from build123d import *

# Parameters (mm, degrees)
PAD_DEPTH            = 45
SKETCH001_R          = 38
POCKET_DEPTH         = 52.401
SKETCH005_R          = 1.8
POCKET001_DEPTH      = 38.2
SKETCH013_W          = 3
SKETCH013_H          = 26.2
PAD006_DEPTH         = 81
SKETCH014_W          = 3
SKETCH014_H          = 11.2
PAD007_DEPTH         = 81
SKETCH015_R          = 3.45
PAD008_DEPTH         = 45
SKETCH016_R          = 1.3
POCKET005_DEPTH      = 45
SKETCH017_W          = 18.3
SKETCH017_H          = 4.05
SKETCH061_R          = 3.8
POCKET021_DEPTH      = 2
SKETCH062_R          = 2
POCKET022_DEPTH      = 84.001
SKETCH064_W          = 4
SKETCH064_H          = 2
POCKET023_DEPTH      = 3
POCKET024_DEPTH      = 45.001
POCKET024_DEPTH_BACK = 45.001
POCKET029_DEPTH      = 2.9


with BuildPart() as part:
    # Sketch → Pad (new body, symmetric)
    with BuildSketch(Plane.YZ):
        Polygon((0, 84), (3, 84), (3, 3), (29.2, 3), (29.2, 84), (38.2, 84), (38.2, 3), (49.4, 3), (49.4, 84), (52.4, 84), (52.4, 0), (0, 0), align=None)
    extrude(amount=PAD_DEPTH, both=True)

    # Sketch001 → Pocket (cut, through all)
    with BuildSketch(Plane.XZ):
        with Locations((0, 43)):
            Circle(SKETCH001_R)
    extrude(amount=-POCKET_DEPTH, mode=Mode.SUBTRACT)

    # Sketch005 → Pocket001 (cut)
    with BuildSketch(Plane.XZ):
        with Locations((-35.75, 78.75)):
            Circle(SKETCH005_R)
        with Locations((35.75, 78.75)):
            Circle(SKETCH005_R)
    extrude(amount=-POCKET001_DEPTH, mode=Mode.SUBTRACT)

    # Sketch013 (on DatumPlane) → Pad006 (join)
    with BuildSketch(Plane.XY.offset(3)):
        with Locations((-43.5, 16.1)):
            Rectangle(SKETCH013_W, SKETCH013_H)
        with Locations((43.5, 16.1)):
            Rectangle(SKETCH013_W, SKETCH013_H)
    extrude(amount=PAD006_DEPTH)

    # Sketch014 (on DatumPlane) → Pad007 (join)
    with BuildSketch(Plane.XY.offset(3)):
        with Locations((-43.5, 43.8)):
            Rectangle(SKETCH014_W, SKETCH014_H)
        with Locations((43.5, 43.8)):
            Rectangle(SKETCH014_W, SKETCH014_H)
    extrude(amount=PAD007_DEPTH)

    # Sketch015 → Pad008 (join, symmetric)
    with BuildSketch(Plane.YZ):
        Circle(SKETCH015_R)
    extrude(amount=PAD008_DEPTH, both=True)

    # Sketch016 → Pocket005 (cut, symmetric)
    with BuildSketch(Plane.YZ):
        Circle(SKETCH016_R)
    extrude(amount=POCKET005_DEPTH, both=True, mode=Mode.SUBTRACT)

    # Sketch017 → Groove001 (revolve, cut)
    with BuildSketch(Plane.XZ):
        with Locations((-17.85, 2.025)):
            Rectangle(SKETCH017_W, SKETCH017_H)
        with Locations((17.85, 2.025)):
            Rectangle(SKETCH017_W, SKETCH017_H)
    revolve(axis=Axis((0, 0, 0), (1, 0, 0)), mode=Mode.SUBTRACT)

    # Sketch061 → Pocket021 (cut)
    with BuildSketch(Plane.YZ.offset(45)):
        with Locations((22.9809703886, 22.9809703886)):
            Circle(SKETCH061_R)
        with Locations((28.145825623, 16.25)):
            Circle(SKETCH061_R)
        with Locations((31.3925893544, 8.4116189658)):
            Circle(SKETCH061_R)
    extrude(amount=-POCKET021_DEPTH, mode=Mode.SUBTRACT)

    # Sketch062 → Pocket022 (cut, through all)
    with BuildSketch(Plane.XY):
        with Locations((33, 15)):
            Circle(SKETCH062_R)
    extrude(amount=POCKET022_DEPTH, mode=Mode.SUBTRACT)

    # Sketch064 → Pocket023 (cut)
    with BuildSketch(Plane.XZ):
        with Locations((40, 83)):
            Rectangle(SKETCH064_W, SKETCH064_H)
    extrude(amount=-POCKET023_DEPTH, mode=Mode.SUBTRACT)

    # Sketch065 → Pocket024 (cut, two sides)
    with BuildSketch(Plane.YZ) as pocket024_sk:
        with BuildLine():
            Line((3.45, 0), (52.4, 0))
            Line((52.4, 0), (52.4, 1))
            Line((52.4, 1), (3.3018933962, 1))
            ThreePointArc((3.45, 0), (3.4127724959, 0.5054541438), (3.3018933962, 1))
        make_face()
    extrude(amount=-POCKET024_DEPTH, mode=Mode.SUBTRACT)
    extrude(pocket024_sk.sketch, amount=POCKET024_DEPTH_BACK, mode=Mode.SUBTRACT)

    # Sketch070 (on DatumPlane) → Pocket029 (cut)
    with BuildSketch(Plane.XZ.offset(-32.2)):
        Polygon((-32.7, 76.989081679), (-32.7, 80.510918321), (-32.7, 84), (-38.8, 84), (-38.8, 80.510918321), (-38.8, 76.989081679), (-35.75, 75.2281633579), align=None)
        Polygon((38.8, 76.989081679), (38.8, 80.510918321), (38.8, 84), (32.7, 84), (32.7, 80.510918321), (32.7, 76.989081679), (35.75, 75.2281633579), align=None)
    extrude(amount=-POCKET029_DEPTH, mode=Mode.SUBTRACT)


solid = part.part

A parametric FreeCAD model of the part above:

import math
import FreeCAD as App
import Part
import Sketcher
Q = App.Units.Quantity


def add_polygon(sketch, points):
    """Adds a closed chain of lines whose ends are joined by coincident constraints."""
    first, n = sketch.GeometryCount, len(points)
    for a, b in zip(points, points[1:] + points[:1]):
        sketch.addGeometry(Part.LineSegment(App.Vector(*a, 0), App.Vector(*b, 0)), False)
    for i in range(n):
        sketch.addConstraint(Sketcher.Constraint("Coincident", first + i, 2, first + (i + 1) % n, 1))

doc = App.newDocument("Part")
params = doc.addObject("Spreadsheet::Sheet", "Params")
for row, (alias, value) in enumerate([
    ("sketch1_width", "3 mm"),
    ("sketch1_width2", "9 mm"),
    ("sketch1_height", "84 mm"),
    ("sketch1_height2", "81 mm"),
    ("sketch1_width3", "52.4 mm"),
    ("pad1_length", "90 mm"),
    ("sketch2_diameter", "76 mm"),
    ("sketch3_diameter", "3.6 mm"),
    ("pocket2_length", "38.2 mm"),
    ("sketch4_width", "3 mm"),
    ("sketch4_height", "26.2 mm"),
    ("pad2_length", "81 mm"),
    ("sketch5_width", "3 mm"),
    ("sketch5_height", "11.2 mm"),
    ("pad3_length", "81 mm"),
    ("sketch6_diameter", "6.9 mm"),
    ("pad4_length", "90 mm"),
    ("sketch7_diameter", "2.6 mm"),
    ("pocket3_length", "90 mm"),
    ("sketch8_width", "18.3 mm"),
    ("sketch8_height", "4.05 mm"),
    ("groove_angle", "360 deg"),
    ("sketch9_diameter", "7.6 mm"),
    ("pocket4_length", "2 mm"),
    ("sketch10_diameter", "4 mm"),
    ("sketch11_width", "4 mm"),
    ("sketch11_height", "2 mm"),
    ("pocket6_length", "3 mm"),
    ("sketch12_height", "1 mm"),
    ("sketch12_radius", "3.45 mm"),
    ("sketch12_width", "48.95 mm"),
    ("sketch13_width", "6.1 mm"),
    ("pocket8_length", "2.9 mm"),
], start=1):
    params.set(f"A{row}", alias)
    params.set(f"B{row}", "=" + value)
    params.setAlias(f"B{row}", alias)

body = doc.addObject("PartDesign::Body", "Body")

sketch1 = body.newObject("Sketcher::SketchObject", "Sketch")
sketch1.AttachmentSupport = (doc.getObject("YZ_Plane"), [""])
sketch1.MapMode = "FlatFace"
add_polygon(sketch1, [(3, 84), (0, 84), (0, 0), (52.4, 0), (52.4, 84), (49.4, 84), (49.4, 3), (38.2, 3), (38.2, 84), (29.2, 84), (29.2, 3), (3, 3)])
sketch1.addConstraint(Sketcher.Constraint("Horizontal", 0))
sketch1.addConstraint(Sketcher.Constraint("Vertical", 1))
sketch1.addConstraint(Sketcher.Constraint("Horizontal", 2))
sketch1.addConstraint(Sketcher.Constraint("Vertical", 3))
sketch1.addConstraint(Sketcher.Constraint("Horizontal", 4))
sketch1.addConstraint(Sketcher.Constraint("Vertical", 5))
sketch1.addConstraint(Sketcher.Constraint("Horizontal", 6))
sketch1.addConstraint(Sketcher.Constraint("Vertical", 7))
sketch1.addConstraint(Sketcher.Constraint("Horizontal", 8))
sketch1.addConstraint(Sketcher.Constraint("Vertical", 9))
sketch1.addConstraint(Sketcher.Constraint("Horizontal", 10))
sketch1.addConstraint(Sketcher.Constraint("Vertical", 11))
sketch1.addConstraint(Sketcher.Constraint("Coincident", 1, 2, -1, 1))
sketch1.addConstraint(Sketcher.Constraint("Horizontal", 0, 2, 3, 2))
sketch1.addConstraint(Sketcher.Constraint("Horizontal", 4, 2, 7, 2))
sketch1.addConstraint(Sketcher.Constraint("Horizontal", 6, 2, 9, 2))
sketch1.addConstraint(Sketcher.Constraint("Equal", 0, 4))
sketch1.addConstraint(Sketcher.Constraint("DistanceX", 0, 2, 0, 1, 3.0))
sketch1.addConstraint(Sketcher.Constraint("DistanceX", 8, 2, 8, 1, 9.0))
sketch1.addConstraint(Sketcher.Constraint("DistanceY", 1, 2, 1, 1, 84.0))
sketch1.addConstraint(Sketcher.Constraint("DistanceY", 5, 2, 5, 1, 81.0))
sketch1.addConstraint(Sketcher.Constraint("DistanceX", 2, 1, 2, 2, 52.4))
sketch1.addConstraint(Sketcher.Constraint("DistanceX", 6, 2, 6, 1, 11.2))
sketch1.setExpression("Constraints[29]", "Params.sketch1_width")
sketch1.setExpression("Constraints[30]", "Params.sketch1_width2")
sketch1.setExpression("Constraints[31]", "Params.sketch1_height")
sketch1.setExpression("Constraints[32]", "Params.sketch1_height2")
sketch1.setExpression("Constraints[33]", "Params.sketch1_width3")
pad1 = body.newObject("PartDesign::Pad", "Pad")
pad1.Profile = sketch1
pad1.setExpression("Length", "Params.pad1_length")
pad1.Midplane = True

sketch2 = body.newObject("Sketcher::SketchObject", "Sketch001")
sketch2.AttachmentSupport = (doc.getObject("XZ_Plane"), [""])
sketch2.MapMode = "FlatFace"
sketch2.addGeometry(Part.Circle(App.Vector(0, 43, 0), App.Vector(0, 0, 1), 38), False)
sketch2.addConstraint(Sketcher.Constraint("PointOnObject", 0, 3, -2))
sketch2.addConstraint(Sketcher.Constraint("Diameter", 0, 76.0))
sketch2.addConstraint(Sketcher.Constraint("DistanceY", -1, 1, 0, 3, 43.0))
sketch2.setExpression("Constraints[1]", "Params.sketch2_diameter")
pocket1 = body.newObject("PartDesign::Pocket", "Pocket")
pocket1.Profile = sketch2
pocket1.Type = "ThroughAll"

sketch3 = body.newObject("Sketcher::SketchObject", "Sketch002")
sketch3.AttachmentSupport = (doc.getObject("XZ_Plane"), [""])
sketch3.MapMode = "FlatFace"
sketch3.addGeometry(Part.Circle(App.Vector(-35.8, 78.8, 0), App.Vector(0, 0, 1), 1.8), False)
sketch3.addGeometry(Part.Circle(App.Vector(35.8, 78.8, 0), App.Vector(0, 0, 1), 1.8), False)
sketch3.addConstraint(Sketcher.Constraint("Equal", 0, 1))
sketch3.addConstraint(Sketcher.Constraint("Symmetric", 0, 3, 1, 3, -2))
sketch3.addConstraint(Sketcher.Constraint("Diameter", 0, 3.6))
sketch3.addConstraint(Sketcher.Constraint("DistanceX", 0, 3, 1, 3, 71.5))
sketch3.addConstraint(Sketcher.Constraint("DistanceY", -1, 1, 0, 3, 78.75))
sketch3.setExpression("Constraints[2]", "Params.sketch3_diameter")
pocket2 = body.newObject("PartDesign::Pocket", "Pocket001")
pocket2.Profile = sketch3
pocket2.setExpression("Length", "Params.pocket2_length")

sketch4 = body.newObject("Sketcher::SketchObject", "Sketch003")
sketch4.AttachmentSupport = (doc.getObject("XY_Plane"), [""])
sketch4.MapMode = "FlatFace"
sketch4.AttachmentOffset = App.Placement(App.Vector(0, 0, 3), App.Rotation())
add_polygon(sketch4, [(-45, 29.2), (-45, 3), (-42, 3), (-42, 29.2)])
add_polygon(sketch4, [(42, 29.2), (42, 3), (45, 3), (45, 29.2)])
sketch4.addConstraint(Sketcher.Constraint("Vertical", 0))
sketch4.addConstraint(Sketcher.Constraint("Horizontal", 1))
sketch4.addConstraint(Sketcher.Constraint("Vertical", 2))
sketch4.addConstraint(Sketcher.Constraint("Horizontal", 3))
sketch4.addConstraint(Sketcher.Constraint("Vertical", 4))
sketch4.addConstraint(Sketcher.Constraint("Horizontal", 5))
sketch4.addConstraint(Sketcher.Constraint("Vertical", 6))
sketch4.addConstraint(Sketcher.Constraint("Horizontal", 7))
sketch4.addConstraint(Sketcher.Constraint("Symmetric", 1, 2, 4, 2, -2))
sketch4.addConstraint(Sketcher.Constraint("Symmetric", 3, 2, 6, 2, -2))
sketch4.addConstraint(Sketcher.Constraint("DistanceX", 1, 1, 1, 2, 3.0))
sketch4.addConstraint(Sketcher.Constraint("DistanceY", 0, 2, 0, 1, 26.2))
sketch4.addConstraint(Sketcher.Constraint("DistanceX", 0, 2, -1, 1, 45.0))
sketch4.addConstraint(Sketcher.Constraint("DistanceY", -1, 1, 0, 2, 3.0))
sketch4.setExpression("Constraints[18]", "Params.sketch4_width")
sketch4.setExpression("Constraints[19]", "Params.sketch4_height")
pad2 = body.newObject("PartDesign::Pad", "Pad001")
pad2.Profile = sketch4
pad2.setExpression("Length", "Params.pad2_length")

sketch5 = body.newObject("Sketcher::SketchObject", "Sketch004")
sketch5.AttachmentSupport = (doc.getObject("XY_Plane"), [""])
sketch5.MapMode = "FlatFace"
sketch5.AttachmentOffset = App.Placement(App.Vector(0, 0, 3), App.Rotation())
add_polygon(sketch5, [(-45, 49.4), (-45, 38.2), (-42, 38.2), (-42, 49.4)])
add_polygon(sketch5, [(42, 49.4), (42, 38.2), (45, 38.2), (45, 49.4)])
sketch5.addConstraint(Sketcher.Constraint("Vertical", 0))
sketch5.addConstraint(Sketcher.Constraint("Horizontal", 1))
sketch5.addConstraint(Sketcher.Constraint("Vertical", 2))
sketch5.addConstraint(Sketcher.Constraint("Horizontal", 3))
sketch5.addConstraint(Sketcher.Constraint("Vertical", 4))
sketch5.addConstraint(Sketcher.Constraint("Horizontal", 5))
sketch5.addConstraint(Sketcher.Constraint("Vertical", 6))
sketch5.addConstraint(Sketcher.Constraint("Horizontal", 7))
sketch5.addConstraint(Sketcher.Constraint("Symmetric", 1, 2, 4, 2, -2))
sketch5.addConstraint(Sketcher.Constraint("Symmetric", 3, 2, 6, 2, -2))
sketch5.addConstraint(Sketcher.Constraint("DistanceX", 1, 1, 1, 2, 3.0))
sketch5.addConstraint(Sketcher.Constraint("DistanceY", 0, 2, 0, 1, 11.2))
sketch5.addConstraint(Sketcher.Constraint("DistanceX", 0, 2, -1, 1, 45.0))
sketch5.addConstraint(Sketcher.Constraint("DistanceY", -1, 1, 0, 2, 38.2))
sketch5.setExpression("Constraints[18]", "Params.sketch5_width")
sketch5.setExpression("Constraints[19]", "Params.sketch5_height")
pad3 = body.newObject("PartDesign::Pad", "Pad002")
pad3.Profile = sketch5
pad3.setExpression("Length", "Params.pad3_length")

sketch6 = body.newObject("Sketcher::SketchObject", "Sketch005")
sketch6.AttachmentSupport = (doc.getObject("YZ_Plane"), [""])
sketch6.MapMode = "FlatFace"
sketch6.addGeometry(Part.Circle(App.Vector(0, 0, 0), App.Vector(0, 0, 1), 3.5), False)
sketch6.addConstraint(Sketcher.Constraint("Coincident", 0, 3, -1, 1))
sketch6.addConstraint(Sketcher.Constraint("Diameter", 0, 6.9))
sketch6.setExpression("Constraints[1]", "Params.sketch6_diameter")
pad4 = body.newObject("PartDesign::Pad", "Pad003")
pad4.Profile = sketch6
pad4.setExpression("Length", "Params.pad4_length")
pad4.Midplane = True

sketch7 = body.newObject("Sketcher::SketchObject", "Sketch006")
sketch7.AttachmentSupport = (doc.getObject("YZ_Plane"), [""])
sketch7.MapMode = "FlatFace"
sketch7.addGeometry(Part.Circle(App.Vector(0, 0, 0), App.Vector(0, 0, 1), 1.3), False)
sketch7.addConstraint(Sketcher.Constraint("Coincident", 0, 3, -1, 1))
sketch7.addConstraint(Sketcher.Constraint("Diameter", 0, 2.6))
sketch7.setExpression("Constraints[1]", "Params.sketch7_diameter")
pocket3 = body.newObject("PartDesign::Pocket", "Pocket002")
pocket3.Profile = sketch7
pocket3.setExpression("Length", "Params.pocket3_length")
pocket3.Midplane = True

sketch8 = body.newObject("Sketcher::SketchObject", "Sketch007")
sketch8.AttachmentSupport = (doc.getObject("XZ_Plane"), [""])
sketch8.MapMode = "FlatFace"
add_polygon(sketch8, [(-27, 4), (-27, 0), (-8.7, 0), (-8.7, 4)])
add_polygon(sketch8, [(8.7, 4), (8.7, 0), (27, 0), (27, 4)])
sketch8.addConstraint(Sketcher.Constraint("Vertical", 0))
sketch8.addConstraint(Sketcher.Constraint("Horizontal", 1))
sketch8.addConstraint(Sketcher.Constraint("Vertical", 2))
sketch8.addConstraint(Sketcher.Constraint("Horizontal", 3))
sketch8.addConstraint(Sketcher.Constraint("Vertical", 4))
sketch8.addConstraint(Sketcher.Constraint("Horizontal", 5))
sketch8.addConstraint(Sketcher.Constraint("Vertical", 6))
sketch8.addConstraint(Sketcher.Constraint("Horizontal", 7))
sketch8.addConstraint(Sketcher.Constraint("Symmetric", 1, 2, 4, 2, -1, 1))
sketch8.addConstraint(Sketcher.Constraint("Symmetric", 0, 2, 5, 2, -2))
sketch8.addConstraint(Sketcher.Constraint("Horizontal", 3, 2, 6, 2))
sketch8.addConstraint(Sketcher.Constraint("DistanceX", 1, 1, 1, 2, 18.3))
sketch8.addConstraint(Sketcher.Constraint("DistanceX", 0, 2, -1, 1, 27.0))
sketch8.addConstraint(Sketcher.Constraint("DistanceY", 0, 2, 0, 1, 4.05))
sketch8.setExpression("Constraints[19]", "Params.sketch8_width")
sketch8.setExpression("Constraints[21]", "Params.sketch8_height")
groove = body.newObject("PartDesign::Groove", "Groove")
groove.Profile = sketch8
groove.ReferenceAxis = (sketch8, ["H_Axis"])
groove.setExpression("Angle", "Params.groove_angle")

sketch9 = body.newObject("Sketcher::SketchObject", "Sketch008")
sketch9.AttachmentSupport = (doc.getObject("YZ_Plane"), [""])
sketch9.MapMode = "FlatFace"
sketch9.AttachmentOffset = App.Placement(App.Vector(0, 0, 45), App.Rotation())
sketch9.addGeometry(Part.Circle(App.Vector(23, 23, 0), App.Vector(0, 0, 1), 3.8), False)
sketch9.addGeometry(Part.Circle(App.Vector(28.1, 16.2, 0), App.Vector(0, 0, 1), 3.8), False)
sketch9.addGeometry(Part.Circle(App.Vector(31.4, 8.4, 0), App.Vector(0, 0, 1), 3.8), False)
sketch9.addConstraint(Sketcher.Constraint("Equal", 0, 1))
sketch9.addConstraint(Sketcher.Constraint("Equal", 1, 2))
sketch9.addConstraint(Sketcher.Constraint("Diameter", 0, 7.6))
sketch9.addConstraint(Sketcher.Constraint("DistanceY", -1, 1, 1, 3, 16.25))
sketch9.addConstraint(Sketcher.Constraint("DistanceX", -1, 1, 0, 3, 22.98097))
sketch9.addConstraint(Sketcher.Constraint("DistanceY", -1, 1, 0, 3, 22.98097))
sketch9.addConstraint(Sketcher.Constraint("DistanceX", -1, 1, 2, 3, 31.392589))
sketch9.addConstraint(Sketcher.Constraint("DistanceY", -1, 1, 2, 3, 8.411619))
sketch9.addConstraint(Sketcher.Constraint("DistanceX", -1, 1, 1, 3, 28.145826))
sketch9.setExpression("Constraints[2]", "Params.sketch9_diameter")
pocket4 = body.newObject("PartDesign::Pocket", "Pocket003")
pocket4.Profile = sketch9
pocket4.setExpression("Length", "Params.pocket4_length")

sketch10 = body.newObject("Sketcher::SketchObject", "Sketch009")
sketch10.AttachmentSupport = (doc.getObject("XY_Plane"), [""])
sketch10.MapMode = "FlatFace"
sketch10.addGeometry(Part.Circle(App.Vector(33, 15, 0), App.Vector(0, 0, 1), 2), False)
sketch10.addConstraint(Sketcher.Constraint("Diameter", 0, 4.0))
sketch10.addConstraint(Sketcher.Constraint("DistanceX", -1, 1, 0, 3, 33.0))
sketch10.addConstraint(Sketcher.Constraint("DistanceY", -1, 1, 0, 3, 15.0))
sketch10.setExpression("Constraints[0]", "Params.sketch10_diameter")
pocket5 = body.newObject("PartDesign::Pocket", "Pocket004")
pocket5.Profile = sketch10
pocket5.Type = "ThroughAll"
pocket5.Reversed = True

sketch11 = body.newObject("Sketcher::SketchObject", "Sketch010")
sketch11.AttachmentSupport = (doc.getObject("XZ_Plane"), [""])
sketch11.MapMode = "FlatFace"
add_polygon(sketch11, [(38, 84), (38, 82), (42, 82), (42, 84)])
sketch11.addConstraint(Sketcher.Constraint("Vertical", 0))
sketch11.addConstraint(Sketcher.Constraint("Horizontal", 1))
sketch11.addConstraint(Sketcher.Constraint("Vertical", 2))
sketch11.addConstraint(Sketcher.Constraint("Horizontal", 3))
sketch11.addConstraint(Sketcher.Constraint("DistanceX", 1, 1, 1, 2, 4.0))
sketch11.addConstraint(Sketcher.Constraint("DistanceY", 0, 2, 0, 1, 2.0))
sketch11.addConstraint(Sketcher.Constraint("DistanceX", -1, 1, 0, 2, 38.0))
sketch11.addConstraint(Sketcher.Constraint("DistanceY", -1, 1, 0, 2, 82.0))
sketch11.setExpression("Constraints[8]", "Params.sketch11_width")
sketch11.setExpression("Constraints[9]", "Params.sketch11_height")
pocket6 = body.newObject("PartDesign::Pocket", "Pocket005")
pocket6.Profile = sketch11
pocket6.setExpression("Length", "Params.pocket6_length")

sketch12 = body.newObject("Sketcher::SketchObject", "Sketch011")
sketch12.AttachmentSupport = (doc.getObject("YZ_Plane"), [""])
sketch12.MapMode = "FlatFace"
sketch12.addGeometry(Part.LineSegment(App.Vector(3.5, 0, 0), App.Vector(52.4, 0, 0)), False)
sketch12.addGeometry(Part.LineSegment(App.Vector(52.4, 0, 0), App.Vector(52.4, 1, 0)), False)
sketch12.addGeometry(Part.LineSegment(App.Vector(52.4, 1, 0), App.Vector(3.3, 1, 0)), False)
sketch12.addGeometry(Part.ArcOfCircle(Part.Circle(App.Vector(0, 0, 0), App.Vector(0, 0, 1), 3.4), math.radians(0), math.radians(16.85)), False)
sketch12.addConstraint(Sketcher.Constraint("Coincident", 0, 2, 1, 1))
sketch12.addConstraint(Sketcher.Constraint("Coincident", 1, 2, 2, 1))
sketch12.addConstraint(Sketcher.Constraint("Coincident", 2, 2, 3, 2))
sketch12.addConstraint(Sketcher.Constraint("Coincident", 3, 1, 0, 1))
sketch12.addConstraint(Sketcher.Constraint("Horizontal", 0))
sketch12.addConstraint(Sketcher.Constraint("Vertical", 1))
sketch12.addConstraint(Sketcher.Constraint("Horizontal", 2))
sketch12.addConstraint(Sketcher.Constraint("Coincident", 3, 3, -1, 1))
sketch12.addConstraint(Sketcher.Constraint("PointOnObject", 0, 2, -1))
sketch12.addConstraint(Sketcher.Constraint("DistanceY", 1, 1, 1, 2, 1.0))
sketch12.addConstraint(Sketcher.Constraint("Radius", 3, 3.45))
sketch12.addConstraint(Sketcher.Constraint("DistanceX", 0, 1, 0, 2, 48.95))
sketch12.setExpression("Constraints[9]", "Params.sketch12_height")
sketch12.setExpression("Constraints[10]", "Params.sketch12_radius")
sketch12.setExpression("Constraints[11]", "Params.sketch12_width")
pocket7 = body.newObject("PartDesign::Pocket", "Pocket006")
pocket7.Profile = sketch12
pocket7.Type = "ThroughAll"
pocket7.Midplane = True

sketch13 = body.newObject("Sketcher::SketchObject", "Sketch012")
sketch13.AttachmentSupport = (doc.getObject("XZ_Plane"), [""])
sketch13.MapMode = "FlatFace"
sketch13.AttachmentOffset = App.Placement(App.Vector(0, 0, -32.2), App.Rotation())
add_polygon(sketch13, [(-32.7, 77), (-32.7, 84), (-38.8, 84), (-38.8, 77), (-35.8, 75.2)])
add_polygon(sketch13, [(38.8, 77), (38.8, 84), (32.7, 84), (32.7, 77), (35.8, 75.2)])
sketch13.addConstraint(Sketcher.Constraint("Vertical", 0))
sketch13.addConstraint(Sketcher.Constraint("Horizontal", 1))
sketch13.addConstraint(Sketcher.Constraint("Vertical", 2))
sketch13.addConstraint(Sketcher.Constraint("Vertical", 5))
sketch13.addConstraint(Sketcher.Constraint("Horizontal", 6))
sketch13.addConstraint(Sketcher.Constraint("Vertical", 7))
sketch13.addConstraint(Sketcher.Constraint("Symmetric", 1, 2, 5, 2, -2))
sketch13.addConstraint(Sketcher.Constraint("Symmetric", 4, 2, 7, 2, -2))
sketch13.addConstraint(Sketcher.Constraint("Symmetric", 3, 2, 8, 2, -2))
sketch13.addConstraint(Sketcher.Constraint("Parallel", 3, 8))
sketch13.addConstraint(Sketcher.Constraint("Parallel", 4, 9))
sketch13.addConstraint(Sketcher.Constraint("Horizontal", 2, 2, 4, 2))
sketch13.addConstraint(Sketcher.Constraint("Angle", 3, Q("-30 deg")))
sketch13.addConstraint(Sketcher.Constraint("DistanceX", 1, 2, 1, 1, 6.1))
sketch13.addConstraint(Sketcher.Constraint("DistanceY", -1, 1, 0, 2, 84.0))
sketch13.addConstraint(Sketcher.Constraint("DistanceX", 0, 2, -1, 1, 32.7))
sketch13.addConstraint(Sketcher.Constraint("DistanceY", 0, 1, 0, 2, 7.010918))
sketch13.setExpression("Constraints[23]", "Params.sketch13_width")
pocket8 = body.newObject("PartDesign::Pocket", "Pocket007")
pocket8.Profile = sketch13
pocket8.setExpression("Length", "Params.pocket8_length")

doc.recompute()
